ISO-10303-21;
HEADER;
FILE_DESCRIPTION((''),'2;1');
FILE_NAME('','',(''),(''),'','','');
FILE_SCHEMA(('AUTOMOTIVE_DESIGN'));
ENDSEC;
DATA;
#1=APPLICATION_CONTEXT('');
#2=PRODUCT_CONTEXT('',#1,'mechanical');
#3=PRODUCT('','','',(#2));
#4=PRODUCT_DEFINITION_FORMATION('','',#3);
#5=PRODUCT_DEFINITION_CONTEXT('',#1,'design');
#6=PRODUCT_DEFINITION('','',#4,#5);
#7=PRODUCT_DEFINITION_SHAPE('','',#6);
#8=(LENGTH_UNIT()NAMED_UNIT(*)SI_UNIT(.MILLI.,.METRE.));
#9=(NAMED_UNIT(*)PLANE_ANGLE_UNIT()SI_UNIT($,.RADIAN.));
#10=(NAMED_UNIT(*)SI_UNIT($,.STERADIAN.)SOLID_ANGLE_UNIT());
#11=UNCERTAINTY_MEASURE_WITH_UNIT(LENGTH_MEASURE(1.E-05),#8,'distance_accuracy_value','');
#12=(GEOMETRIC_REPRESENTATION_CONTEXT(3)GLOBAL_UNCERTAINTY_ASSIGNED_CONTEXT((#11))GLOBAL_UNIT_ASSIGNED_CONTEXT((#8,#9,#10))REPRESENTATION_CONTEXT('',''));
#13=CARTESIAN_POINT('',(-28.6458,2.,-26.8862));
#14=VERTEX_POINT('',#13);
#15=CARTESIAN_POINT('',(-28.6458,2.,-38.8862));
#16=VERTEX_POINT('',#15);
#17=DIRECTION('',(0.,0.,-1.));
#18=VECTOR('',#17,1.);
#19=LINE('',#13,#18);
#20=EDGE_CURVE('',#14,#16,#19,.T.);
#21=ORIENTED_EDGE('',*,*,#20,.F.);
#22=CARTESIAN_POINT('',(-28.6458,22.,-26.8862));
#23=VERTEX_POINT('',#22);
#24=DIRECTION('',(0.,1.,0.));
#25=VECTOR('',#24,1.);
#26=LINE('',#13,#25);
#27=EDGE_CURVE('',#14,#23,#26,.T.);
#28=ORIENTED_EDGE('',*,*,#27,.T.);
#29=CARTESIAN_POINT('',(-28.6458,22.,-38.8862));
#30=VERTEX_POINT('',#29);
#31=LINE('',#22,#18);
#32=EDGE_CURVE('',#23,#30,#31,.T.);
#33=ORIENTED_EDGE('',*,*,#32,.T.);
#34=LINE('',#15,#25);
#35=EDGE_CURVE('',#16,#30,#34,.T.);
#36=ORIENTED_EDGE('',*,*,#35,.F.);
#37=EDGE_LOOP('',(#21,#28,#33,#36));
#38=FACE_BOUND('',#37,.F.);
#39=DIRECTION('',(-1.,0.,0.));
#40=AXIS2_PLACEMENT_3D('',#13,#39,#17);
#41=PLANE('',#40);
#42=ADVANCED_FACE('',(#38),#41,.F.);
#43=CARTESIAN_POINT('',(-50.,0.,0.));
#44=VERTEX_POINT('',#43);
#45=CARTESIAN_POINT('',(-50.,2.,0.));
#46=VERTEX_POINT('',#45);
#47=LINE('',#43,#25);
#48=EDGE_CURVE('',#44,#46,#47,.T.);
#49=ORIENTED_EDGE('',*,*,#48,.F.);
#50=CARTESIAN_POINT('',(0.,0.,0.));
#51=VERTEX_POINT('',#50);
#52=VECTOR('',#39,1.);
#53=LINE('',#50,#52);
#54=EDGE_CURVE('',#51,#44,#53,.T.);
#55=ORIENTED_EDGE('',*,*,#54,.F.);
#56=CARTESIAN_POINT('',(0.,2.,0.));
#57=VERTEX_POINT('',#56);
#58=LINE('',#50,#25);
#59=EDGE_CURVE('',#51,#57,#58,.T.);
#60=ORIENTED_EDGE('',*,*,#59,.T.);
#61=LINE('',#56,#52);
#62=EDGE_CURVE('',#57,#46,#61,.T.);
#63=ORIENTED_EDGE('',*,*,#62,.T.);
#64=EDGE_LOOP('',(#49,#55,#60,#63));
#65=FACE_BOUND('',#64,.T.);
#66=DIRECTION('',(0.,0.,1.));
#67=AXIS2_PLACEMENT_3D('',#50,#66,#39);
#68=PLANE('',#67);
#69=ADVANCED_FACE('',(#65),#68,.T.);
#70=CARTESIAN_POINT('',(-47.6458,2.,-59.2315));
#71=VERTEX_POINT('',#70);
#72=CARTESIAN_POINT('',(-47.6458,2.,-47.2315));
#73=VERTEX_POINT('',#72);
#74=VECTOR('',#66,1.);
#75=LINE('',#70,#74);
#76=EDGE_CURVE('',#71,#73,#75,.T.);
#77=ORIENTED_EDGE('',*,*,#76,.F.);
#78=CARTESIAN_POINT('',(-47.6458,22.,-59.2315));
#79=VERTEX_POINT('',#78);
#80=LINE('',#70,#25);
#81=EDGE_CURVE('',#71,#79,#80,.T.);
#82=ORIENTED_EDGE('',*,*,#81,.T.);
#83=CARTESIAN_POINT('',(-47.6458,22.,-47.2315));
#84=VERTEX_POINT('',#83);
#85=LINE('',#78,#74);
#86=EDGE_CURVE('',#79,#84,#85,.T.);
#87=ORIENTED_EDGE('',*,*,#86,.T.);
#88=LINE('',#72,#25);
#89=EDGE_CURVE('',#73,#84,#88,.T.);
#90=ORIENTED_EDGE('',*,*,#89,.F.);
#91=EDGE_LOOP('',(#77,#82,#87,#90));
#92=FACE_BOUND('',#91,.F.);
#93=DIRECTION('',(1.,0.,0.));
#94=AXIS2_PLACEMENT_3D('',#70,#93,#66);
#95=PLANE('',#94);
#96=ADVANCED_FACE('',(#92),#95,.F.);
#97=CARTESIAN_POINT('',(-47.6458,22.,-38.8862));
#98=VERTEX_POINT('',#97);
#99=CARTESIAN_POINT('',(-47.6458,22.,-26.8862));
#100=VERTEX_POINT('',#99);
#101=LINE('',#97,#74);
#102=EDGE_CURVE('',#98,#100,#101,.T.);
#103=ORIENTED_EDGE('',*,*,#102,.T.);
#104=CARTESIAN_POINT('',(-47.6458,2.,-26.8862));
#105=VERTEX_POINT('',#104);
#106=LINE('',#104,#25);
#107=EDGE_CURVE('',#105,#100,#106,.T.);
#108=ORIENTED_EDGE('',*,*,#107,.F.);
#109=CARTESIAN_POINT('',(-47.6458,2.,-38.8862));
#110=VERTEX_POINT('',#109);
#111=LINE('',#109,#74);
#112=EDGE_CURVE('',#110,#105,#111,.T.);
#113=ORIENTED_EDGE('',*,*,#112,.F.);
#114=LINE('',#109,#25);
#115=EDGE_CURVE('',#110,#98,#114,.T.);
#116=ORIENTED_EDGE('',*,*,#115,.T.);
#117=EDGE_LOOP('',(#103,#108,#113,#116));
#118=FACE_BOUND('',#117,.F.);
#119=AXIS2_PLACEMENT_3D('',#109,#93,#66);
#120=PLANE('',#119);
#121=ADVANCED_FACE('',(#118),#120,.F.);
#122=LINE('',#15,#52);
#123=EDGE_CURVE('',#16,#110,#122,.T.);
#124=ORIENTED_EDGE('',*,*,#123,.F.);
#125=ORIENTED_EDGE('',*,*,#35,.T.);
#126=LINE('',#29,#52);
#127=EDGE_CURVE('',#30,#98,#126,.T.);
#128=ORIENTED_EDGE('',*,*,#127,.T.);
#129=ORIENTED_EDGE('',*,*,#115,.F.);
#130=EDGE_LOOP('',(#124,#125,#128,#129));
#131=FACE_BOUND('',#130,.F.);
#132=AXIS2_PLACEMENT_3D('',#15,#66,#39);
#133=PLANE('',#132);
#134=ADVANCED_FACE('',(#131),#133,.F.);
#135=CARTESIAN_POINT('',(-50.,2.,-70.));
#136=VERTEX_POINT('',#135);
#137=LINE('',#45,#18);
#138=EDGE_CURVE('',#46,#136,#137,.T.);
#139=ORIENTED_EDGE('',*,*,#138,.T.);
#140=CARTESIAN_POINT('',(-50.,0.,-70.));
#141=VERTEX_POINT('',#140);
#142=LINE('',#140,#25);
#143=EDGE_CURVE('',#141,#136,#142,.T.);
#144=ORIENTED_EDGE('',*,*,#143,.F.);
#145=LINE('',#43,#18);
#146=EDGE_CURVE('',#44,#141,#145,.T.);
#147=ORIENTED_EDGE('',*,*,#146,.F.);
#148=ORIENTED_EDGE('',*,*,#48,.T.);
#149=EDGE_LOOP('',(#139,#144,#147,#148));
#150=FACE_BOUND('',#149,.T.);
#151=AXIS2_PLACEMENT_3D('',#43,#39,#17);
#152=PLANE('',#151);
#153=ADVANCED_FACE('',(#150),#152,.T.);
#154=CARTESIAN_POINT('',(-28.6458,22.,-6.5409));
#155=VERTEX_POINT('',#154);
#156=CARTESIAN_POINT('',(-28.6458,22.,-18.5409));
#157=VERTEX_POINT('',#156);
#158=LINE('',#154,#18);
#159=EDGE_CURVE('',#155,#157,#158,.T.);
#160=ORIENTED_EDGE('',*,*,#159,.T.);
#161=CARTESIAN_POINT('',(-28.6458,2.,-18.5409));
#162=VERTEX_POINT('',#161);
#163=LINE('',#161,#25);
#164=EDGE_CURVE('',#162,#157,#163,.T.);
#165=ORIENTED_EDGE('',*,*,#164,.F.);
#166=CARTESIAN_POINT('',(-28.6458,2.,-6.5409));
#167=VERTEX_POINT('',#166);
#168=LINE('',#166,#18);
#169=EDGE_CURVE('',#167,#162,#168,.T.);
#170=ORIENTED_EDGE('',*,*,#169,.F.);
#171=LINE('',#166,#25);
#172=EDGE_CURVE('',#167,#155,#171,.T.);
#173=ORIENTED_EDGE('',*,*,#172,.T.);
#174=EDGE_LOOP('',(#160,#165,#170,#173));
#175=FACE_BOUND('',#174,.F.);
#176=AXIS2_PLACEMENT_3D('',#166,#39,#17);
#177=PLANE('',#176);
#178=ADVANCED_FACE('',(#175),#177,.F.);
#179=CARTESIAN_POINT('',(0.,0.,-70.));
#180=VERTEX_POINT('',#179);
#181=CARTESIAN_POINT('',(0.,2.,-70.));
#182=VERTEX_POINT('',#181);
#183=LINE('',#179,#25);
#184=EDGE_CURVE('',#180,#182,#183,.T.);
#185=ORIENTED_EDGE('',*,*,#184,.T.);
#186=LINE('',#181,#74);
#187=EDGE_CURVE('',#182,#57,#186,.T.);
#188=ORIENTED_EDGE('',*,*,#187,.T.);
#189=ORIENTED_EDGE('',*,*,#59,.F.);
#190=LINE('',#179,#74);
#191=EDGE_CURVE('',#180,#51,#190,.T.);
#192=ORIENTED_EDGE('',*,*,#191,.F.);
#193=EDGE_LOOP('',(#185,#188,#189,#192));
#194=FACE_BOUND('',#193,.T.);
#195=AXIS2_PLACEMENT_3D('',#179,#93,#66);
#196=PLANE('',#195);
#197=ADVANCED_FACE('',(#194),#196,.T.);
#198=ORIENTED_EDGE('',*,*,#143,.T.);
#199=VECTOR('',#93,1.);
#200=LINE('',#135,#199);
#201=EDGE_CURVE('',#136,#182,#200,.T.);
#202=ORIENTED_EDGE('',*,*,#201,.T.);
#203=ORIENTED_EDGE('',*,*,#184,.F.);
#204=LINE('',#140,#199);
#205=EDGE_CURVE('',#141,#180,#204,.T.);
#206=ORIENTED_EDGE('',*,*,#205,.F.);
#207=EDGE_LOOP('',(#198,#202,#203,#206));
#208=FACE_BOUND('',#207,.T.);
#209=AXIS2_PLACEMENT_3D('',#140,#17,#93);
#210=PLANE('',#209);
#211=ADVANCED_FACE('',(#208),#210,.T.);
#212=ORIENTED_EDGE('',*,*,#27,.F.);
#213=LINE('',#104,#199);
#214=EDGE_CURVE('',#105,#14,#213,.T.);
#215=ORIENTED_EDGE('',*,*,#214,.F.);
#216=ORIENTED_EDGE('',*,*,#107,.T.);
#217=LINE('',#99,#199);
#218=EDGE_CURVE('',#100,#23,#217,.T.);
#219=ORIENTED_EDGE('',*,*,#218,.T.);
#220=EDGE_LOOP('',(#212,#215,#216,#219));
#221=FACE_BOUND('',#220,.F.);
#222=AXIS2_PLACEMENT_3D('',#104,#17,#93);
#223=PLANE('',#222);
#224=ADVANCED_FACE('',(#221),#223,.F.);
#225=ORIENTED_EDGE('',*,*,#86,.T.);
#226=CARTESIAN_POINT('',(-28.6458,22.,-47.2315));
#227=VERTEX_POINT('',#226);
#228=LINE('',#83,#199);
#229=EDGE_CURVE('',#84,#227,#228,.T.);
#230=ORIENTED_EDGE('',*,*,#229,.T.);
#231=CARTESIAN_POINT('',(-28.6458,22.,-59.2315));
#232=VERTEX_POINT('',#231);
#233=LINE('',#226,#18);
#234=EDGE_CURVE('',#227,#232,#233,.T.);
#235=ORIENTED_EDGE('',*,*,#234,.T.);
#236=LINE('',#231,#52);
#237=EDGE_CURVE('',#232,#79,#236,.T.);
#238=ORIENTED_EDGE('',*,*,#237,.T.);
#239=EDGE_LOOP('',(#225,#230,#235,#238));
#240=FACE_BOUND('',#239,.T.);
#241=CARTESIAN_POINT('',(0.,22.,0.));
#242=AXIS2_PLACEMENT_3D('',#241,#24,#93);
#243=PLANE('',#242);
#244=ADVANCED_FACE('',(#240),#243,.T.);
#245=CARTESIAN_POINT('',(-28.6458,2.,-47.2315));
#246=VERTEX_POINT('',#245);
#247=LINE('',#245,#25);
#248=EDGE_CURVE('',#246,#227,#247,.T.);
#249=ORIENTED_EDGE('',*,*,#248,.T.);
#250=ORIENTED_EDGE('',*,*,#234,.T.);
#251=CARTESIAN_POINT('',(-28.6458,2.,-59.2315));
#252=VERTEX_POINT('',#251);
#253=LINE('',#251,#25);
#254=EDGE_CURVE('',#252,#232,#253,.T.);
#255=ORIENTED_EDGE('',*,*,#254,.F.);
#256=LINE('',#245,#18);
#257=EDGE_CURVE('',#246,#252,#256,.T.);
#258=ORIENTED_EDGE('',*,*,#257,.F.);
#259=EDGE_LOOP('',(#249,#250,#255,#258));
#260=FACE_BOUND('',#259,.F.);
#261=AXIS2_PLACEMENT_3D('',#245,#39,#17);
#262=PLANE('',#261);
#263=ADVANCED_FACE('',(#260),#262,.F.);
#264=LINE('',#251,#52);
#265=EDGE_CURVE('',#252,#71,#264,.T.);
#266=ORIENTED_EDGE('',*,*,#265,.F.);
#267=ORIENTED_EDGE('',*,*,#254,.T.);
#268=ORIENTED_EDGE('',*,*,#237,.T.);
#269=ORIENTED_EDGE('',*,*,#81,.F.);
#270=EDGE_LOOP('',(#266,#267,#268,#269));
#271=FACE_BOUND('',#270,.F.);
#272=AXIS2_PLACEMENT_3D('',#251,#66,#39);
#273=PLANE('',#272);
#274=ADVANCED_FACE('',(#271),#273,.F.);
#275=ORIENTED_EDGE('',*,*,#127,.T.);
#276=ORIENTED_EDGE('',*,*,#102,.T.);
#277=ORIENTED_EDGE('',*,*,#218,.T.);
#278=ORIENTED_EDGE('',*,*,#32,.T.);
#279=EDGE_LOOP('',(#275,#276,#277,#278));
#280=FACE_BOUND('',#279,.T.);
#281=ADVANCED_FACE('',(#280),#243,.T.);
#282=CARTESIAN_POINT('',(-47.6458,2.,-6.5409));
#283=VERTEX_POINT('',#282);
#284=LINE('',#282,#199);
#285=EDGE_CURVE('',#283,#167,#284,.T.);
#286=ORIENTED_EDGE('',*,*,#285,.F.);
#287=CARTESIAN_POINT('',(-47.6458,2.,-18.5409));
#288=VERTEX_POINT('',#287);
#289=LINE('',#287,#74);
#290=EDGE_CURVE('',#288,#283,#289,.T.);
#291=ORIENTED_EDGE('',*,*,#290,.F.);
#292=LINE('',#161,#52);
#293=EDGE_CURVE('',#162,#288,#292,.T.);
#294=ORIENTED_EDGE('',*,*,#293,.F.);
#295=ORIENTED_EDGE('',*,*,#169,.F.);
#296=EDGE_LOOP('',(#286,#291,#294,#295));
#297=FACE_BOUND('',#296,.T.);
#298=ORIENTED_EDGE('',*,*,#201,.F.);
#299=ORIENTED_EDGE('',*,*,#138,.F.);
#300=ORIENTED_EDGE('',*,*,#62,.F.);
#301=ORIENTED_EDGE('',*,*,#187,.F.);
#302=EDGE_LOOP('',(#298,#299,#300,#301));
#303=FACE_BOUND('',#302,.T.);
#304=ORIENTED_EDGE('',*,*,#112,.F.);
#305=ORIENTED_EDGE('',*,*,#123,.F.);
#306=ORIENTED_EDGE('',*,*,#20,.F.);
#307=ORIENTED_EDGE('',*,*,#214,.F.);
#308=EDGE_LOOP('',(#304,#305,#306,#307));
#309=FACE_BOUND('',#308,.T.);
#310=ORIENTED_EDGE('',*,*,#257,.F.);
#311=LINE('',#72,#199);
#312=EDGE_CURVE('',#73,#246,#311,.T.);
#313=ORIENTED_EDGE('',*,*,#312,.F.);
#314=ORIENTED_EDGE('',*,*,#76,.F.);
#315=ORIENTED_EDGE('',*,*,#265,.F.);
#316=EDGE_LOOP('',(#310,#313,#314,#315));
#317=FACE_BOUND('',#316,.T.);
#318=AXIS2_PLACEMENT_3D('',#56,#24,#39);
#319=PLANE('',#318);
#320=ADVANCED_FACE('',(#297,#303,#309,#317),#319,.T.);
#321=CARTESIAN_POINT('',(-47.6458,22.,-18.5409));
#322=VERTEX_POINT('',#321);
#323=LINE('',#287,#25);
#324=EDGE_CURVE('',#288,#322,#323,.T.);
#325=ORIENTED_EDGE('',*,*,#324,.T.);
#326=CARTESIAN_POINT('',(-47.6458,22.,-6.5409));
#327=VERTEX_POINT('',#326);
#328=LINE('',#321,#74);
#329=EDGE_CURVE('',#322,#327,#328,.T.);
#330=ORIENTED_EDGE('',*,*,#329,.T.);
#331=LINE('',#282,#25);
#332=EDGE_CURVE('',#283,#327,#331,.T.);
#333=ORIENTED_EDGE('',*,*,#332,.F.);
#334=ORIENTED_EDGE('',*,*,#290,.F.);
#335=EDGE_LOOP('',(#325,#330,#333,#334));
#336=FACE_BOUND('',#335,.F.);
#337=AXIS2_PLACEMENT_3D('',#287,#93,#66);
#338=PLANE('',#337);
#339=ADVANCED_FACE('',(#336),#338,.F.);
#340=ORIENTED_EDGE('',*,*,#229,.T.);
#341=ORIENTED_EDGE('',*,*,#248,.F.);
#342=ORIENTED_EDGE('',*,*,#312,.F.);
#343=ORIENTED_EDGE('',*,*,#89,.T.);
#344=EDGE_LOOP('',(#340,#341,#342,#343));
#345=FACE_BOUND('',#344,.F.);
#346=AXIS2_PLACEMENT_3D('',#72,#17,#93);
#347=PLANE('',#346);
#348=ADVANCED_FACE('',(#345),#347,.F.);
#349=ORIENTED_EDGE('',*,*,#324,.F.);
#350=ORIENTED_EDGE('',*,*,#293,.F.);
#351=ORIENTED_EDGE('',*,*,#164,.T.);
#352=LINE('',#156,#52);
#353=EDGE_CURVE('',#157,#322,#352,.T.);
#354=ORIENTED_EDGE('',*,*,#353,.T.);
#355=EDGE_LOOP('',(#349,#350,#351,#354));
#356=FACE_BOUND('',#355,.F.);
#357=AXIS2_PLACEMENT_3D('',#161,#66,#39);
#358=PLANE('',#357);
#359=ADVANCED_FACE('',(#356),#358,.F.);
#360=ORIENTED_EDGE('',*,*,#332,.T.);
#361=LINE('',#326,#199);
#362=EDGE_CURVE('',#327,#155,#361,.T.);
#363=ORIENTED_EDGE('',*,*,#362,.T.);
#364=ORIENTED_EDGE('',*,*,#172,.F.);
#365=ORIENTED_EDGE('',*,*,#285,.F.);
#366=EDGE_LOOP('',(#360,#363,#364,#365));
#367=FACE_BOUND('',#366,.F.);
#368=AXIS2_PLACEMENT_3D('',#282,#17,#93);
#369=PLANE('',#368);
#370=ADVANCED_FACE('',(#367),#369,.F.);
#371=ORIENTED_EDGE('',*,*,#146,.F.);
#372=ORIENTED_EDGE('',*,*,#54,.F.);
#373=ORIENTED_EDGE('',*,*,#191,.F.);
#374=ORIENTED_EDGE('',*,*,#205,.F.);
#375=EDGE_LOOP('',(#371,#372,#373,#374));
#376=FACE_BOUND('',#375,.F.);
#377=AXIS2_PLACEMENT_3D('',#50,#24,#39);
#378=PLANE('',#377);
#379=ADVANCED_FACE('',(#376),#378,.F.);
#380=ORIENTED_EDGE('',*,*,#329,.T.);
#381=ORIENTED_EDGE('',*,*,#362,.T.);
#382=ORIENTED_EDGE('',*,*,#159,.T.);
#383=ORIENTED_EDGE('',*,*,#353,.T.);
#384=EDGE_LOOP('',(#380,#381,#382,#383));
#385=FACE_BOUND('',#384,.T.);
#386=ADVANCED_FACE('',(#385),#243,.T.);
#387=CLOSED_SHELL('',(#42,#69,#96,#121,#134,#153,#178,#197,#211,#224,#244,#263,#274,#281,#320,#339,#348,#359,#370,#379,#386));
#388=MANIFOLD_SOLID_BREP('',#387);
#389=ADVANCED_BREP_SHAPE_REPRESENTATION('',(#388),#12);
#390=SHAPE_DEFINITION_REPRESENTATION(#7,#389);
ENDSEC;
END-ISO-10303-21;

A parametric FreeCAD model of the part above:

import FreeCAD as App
import Part
import Sketcher

V = App.Vector

doc = App.newDocument("Part")
params = doc.addObject("Spreadsheet::Sheet", "Params")
for row, (alias, value) in enumerate([
    ("sketch1_width", "50 mm"),
    ("sketch1_height", "70 mm"),
    ("pad1_length", "2 mm"),
    ("sketch2_width", "19 mm"),
    ("sketch2_height", "12 mm"),
    ("pad2_length", "20 mm"),
], start=1):
    params.set(f"A{row}", alias)
    params.set(f"B{row}", "=" + value)
    params.setAlias(f"B{row}", alias)

body = doc.addObject("PartDesign::Body", "Body")

# Sketch on XZ plane
sketch1 = doc.addObject("Sketcher::SketchObject", "Sketch")
body.addObject(sketch1)
sketch1.AttachmentSupport = (doc.XZ_Plane, [""])
sketch1.MapMode = "FlatFace"
sketch1.addGeometry(Part.LineSegment(V(-50, 0, 0), V(0, 0, 0)), False)
sketch1.addGeometry(Part.LineSegment(V(0, 0, 0), V(0, -70, 0)), False)
sketch1.addGeometry(Part.LineSegment(V(0, -70, 0), V(-50, -70, 0)), False)
sketch1.addGeometry(Part.LineSegment(V(-50, -70, 0), V(-50, 0, 0)), False)
sketch1.addConstraint(Sketcher.Constraint("Coincident", 0, 2, 1, 1))
sketch1.addConstraint(Sketcher.Constraint("Coincident", 1, 2, 2, 1))
sketch1.addConstraint(Sketcher.Constraint("Coincident", 2, 2, 3, 1))
sketch1.addConstraint(Sketcher.Constraint("Coincident", 3, 2, 0, 1))
sketch1.addConstraint(Sketcher.Constraint("Horizontal", 0))
sketch1.addConstraint(Sketcher.Constraint("Vertical", 1))
sketch1.addConstraint(Sketcher.Constraint("Horizontal", 2))
sketch1.addConstraint(Sketcher.Constraint("Vertical", 3))
sketch1.addConstraint(Sketcher.Constraint("Coincident", 0, 2, -1, 1))
sketch1.addConstraint(Sketcher.Constraint("DistanceX", 0, 1, 0, 2, 50.0))
sketch1.addConstraint(Sketcher.Constraint("DistanceY", 1, 2, 1, 1, 70.0))
sketch1.setExpression("Constraints[9]", "Params.sketch1_width")
sketch1.setExpression("Constraints[10]", "Params.sketch1_height")
pad1 = doc.addObject("PartDesign::Pad", "Pad")
body.addObject(pad1)
pad1.Profile = sketch1
pad1.setExpression("Length", "Params.pad1_length")
pad1.Reversed = True

# Sketch on XZ plane
sketch2 = doc.addObject("Sketcher::SketchObject", "Sketch001")
body.addObject(sketch2)
sketch2.AttachmentSupport = (doc.XZ_Plane, [""])
sketch2.MapMode = "FlatFace"
sketch2.AttachmentOffset = App.Placement(V(0, 0, -2), App.Rotation())
sketch2.addGeometry(Part.LineSegment(V(-48, -19, 0), V(-48, -7, 0)), False)
sketch2.addGeometry(Part.LineSegment(V(-48, -7, 0), V(-29, -7, 0)), False)
sketch2.addGeometry(Part.LineSegment(V(-29, -7, 0), V(-29, -19, 0)), False)
sketch2.addGeometry(Part.LineSegment(V(-29, -19, 0), V(-48, -19, 0)), False)
sketch2.addGeometry(Part.LineSegment(V(-48, -39, 0), V(-48, -27, 0)), False)
sketch2.addGeometry(Part.LineSegment(V(-48, -27, 0), V(-29, -27, 0)), False)
sketch2.addGeometry(Part.LineSegment(V(-29, -27, 0), V(-29, -39, 0)), False)
sketch2.addGeometry(Part.LineSegment(V(-29, -39, 0), V(-48, -39, 0)), False)
sketch2.addGeometry(Part.LineSegment(V(-48, -59, 0), V(-48, -47, 0)), False)
sketch2.addGeometry(Part.LineSegment(V(-48, -47, 0), V(-29, -47, 0)), False)
sketch2.addGeometry(Part.LineSegment(V(-29, -47, 0), V(-29, -59, 0)), False)
sketch2.addGeometry(Part.LineSegment(V(-29, -59, 0), V(-48, -59, 0)), False)
sketch2.addConstraint(Sketcher.Constraint("Coincident", 0, 2, 1, 1))
sketch2.addConstraint(Sketcher.Constraint("Coincident", 1, 2, 2, 1))
sketch2.addConstraint(Sketcher.Constraint("Coincident", 2, 2, 3, 1))
sketch2.addConstraint(Sketcher.Constraint("Coincident", 3, 2, 0, 1))
sketch2.addConstraint(Sketcher.Constraint("Coincident", 4, 2, 5, 1))
sketch2.addConstraint(Sketcher.Constraint("Coincident", 5, 2, 6, 1))
sketch2.addConstraint(Sketcher.Constraint("Coincident", 6, 2, 7, 1))
sketch2.addConstraint(Sketcher.Constraint("Coincident", 7, 2, 4, 1))
sketch2.addConstraint(Sketcher.Constraint("Coincident", 8, 2, 9, 1))
sketch2.addConstraint(Sketcher.Constraint("Coincident", 9, 2, 10, 1))
sketch2.addConstraint(Sketcher.Constraint("Coincident", 10, 2, 11, 1))
sketch2.addConstraint(Sketcher.Constraint("Coincident", 11, 2, 8, 1))
sketch2.addConstraint(Sketcher.Constraint("Vertical", 0))
sketch2.addConstraint(Sketcher.Constraint("Horizontal", 1))
sketch2.addConstraint(Sketcher.Constraint("Vertical", 2))
sketch2.addConstraint(Sketcher.Constraint("Horizontal", 3))
sketch2.addConstraint(Sketcher.Constraint("Vertical", 4))
sketch2.addConstraint(Sketcher.Constraint("Horizontal", 5))
sketch2.addConstraint(Sketcher.Constraint("Vertical", 6))
sketch2.addConstraint(Sketcher.Constraint("Horizontal", 7))
sketch2.addConstraint(Sketcher.Constraint("Vertical", 8))
sketch2.addConstraint(Sketcher.Constraint("Horizontal", 9))
sketch2.addConstraint(Sketcher.Constraint("Vertical", 10))
sketch2.addConstraint(Sketcher.Constraint("Horizontal", 11))
sketch2.addConstraint(Sketcher.Constraint("Vertical", 3, 2, 4, 2))
sketch2.addConstraint(Sketcher.Constraint("Vertical", 2, 2, 5, 2))
sketch2.addConstraint(Sketcher.Constraint("Vertical", 7, 2, 8, 2))
sketch2.addConstraint(Sketcher.Constraint("Vertical", 6, 2, 9, 2))
sketch2.addConstraint(Sketcher.Constraint("Equal", 2, 4))
sketch2.addConstraint(Sketcher.Constraint("Equal", 6, 8))
sketch2.addConstraint(Sketcher.Constraint("DistanceX", 1, 1, 1, 2, 19.0))
sketch2.addConstraint(Sketcher.Constraint("DistanceY", 0, 1, 0, 2, 12.0))
sketch2.addConstraint(Sketcher.Constraint("DistanceY", 0, 2, -1, 1, 6.541))
sketch2.addConstraint(Sketcher.Constraint("DistanceX", 0, 2, -1, 1, 47.6458))
sketch2.addConstraint(Sketcher.Constraint("DistanceY", 4, 2, -1, 1, 26.8862))
sketch2.addConstraint(Sketcher.Constraint("DistanceY", 8, 2, -1, 1, 47.2315))
sketch2.setExpression("Constraints[30]", "Params.sketch2_width")
sketch2.setExpression("Constraints[31]", "Params.sketch2_height")
pad2 = doc.addObject("PartDesign::Pad", "Pad001")
body.addObject(pad2)
pad2.Profile = sketch2
pad2.setExpression("Length", "Params.pad2_length")
pad2.Reversed = True

doc.recompute()
